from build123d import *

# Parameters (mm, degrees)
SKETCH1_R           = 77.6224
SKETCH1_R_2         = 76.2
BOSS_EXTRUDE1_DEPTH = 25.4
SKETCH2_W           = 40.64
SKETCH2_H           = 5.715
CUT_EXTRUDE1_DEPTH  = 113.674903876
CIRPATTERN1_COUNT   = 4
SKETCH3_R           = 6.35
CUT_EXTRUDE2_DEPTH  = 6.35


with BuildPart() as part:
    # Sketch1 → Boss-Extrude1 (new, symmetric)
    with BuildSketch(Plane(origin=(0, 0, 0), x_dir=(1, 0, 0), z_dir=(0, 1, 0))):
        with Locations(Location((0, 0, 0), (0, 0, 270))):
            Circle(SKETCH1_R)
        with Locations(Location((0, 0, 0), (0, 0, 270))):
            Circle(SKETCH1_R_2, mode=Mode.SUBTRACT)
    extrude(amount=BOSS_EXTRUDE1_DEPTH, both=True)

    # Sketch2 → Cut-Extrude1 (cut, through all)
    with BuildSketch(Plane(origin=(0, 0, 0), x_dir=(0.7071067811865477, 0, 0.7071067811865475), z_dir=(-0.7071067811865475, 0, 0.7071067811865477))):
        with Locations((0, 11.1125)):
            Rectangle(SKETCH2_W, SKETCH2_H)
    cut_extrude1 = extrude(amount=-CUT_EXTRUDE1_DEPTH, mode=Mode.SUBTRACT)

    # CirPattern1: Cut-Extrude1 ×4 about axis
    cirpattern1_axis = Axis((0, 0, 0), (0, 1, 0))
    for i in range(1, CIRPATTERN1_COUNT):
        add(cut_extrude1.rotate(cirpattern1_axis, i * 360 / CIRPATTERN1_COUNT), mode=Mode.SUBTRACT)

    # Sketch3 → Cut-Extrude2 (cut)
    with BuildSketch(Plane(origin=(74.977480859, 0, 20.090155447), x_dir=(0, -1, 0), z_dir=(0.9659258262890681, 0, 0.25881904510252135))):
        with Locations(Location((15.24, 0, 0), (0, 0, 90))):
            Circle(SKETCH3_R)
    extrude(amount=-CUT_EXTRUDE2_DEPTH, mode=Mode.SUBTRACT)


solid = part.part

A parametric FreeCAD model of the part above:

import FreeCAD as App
import Part
import Sketcher
Q = App.Units.Quantity

doc = App.newDocument("Part")
params = doc.addObject("Spreadsheet::Sheet", "Params")
for row, (alias, value) in enumerate([
    ("sketch1_diameter", "6 in"),
    ("sketch1_diameter2", "6.112 in"),
    ("pad1_length", "2 in"),
    ("sketch2_width", "1.6 in"),
    ("sketch2_height", "0.225 in"),
    ("sketch3_diameter", "0.5 in"),
    ("pocket2_length", "0.25 in"),
], start=1):
    params.set(f"A{row}", alias)
    params.set(f"B{row}", "=" + value)
    params.setAlias(f"B{row}", alias)

body = doc.addObject("PartDesign::Body", "Body")

# Sketch on XZ plane
sketch1 = body.newObject("Sketcher::SketchObject", "Sketch")
sketch1.AttachmentSupport = (doc.getObject("XZ_Plane"), [""])
sketch1.MapMode = "FlatFace"
sketch1.addGeometry([
    Part.Circle(App.Vector(0, 0, 0), App.Vector(0, 0, 1), 78),
    Part.Circle(App.Vector(0, 0, 0), App.Vector(0, 0, 1), 76),
], False)
sketch1.addConstraint([
    Sketcher.Constraint("Coincident", 0, 3, -1, 1),
    Sketcher.Constraint("Coincident", 1, 3, -1, 1),
    Sketcher.Constraint("Diameter", 1, Q("6 in")),
    Sketcher.Constraint("Diameter", 0, Q("6.112 in")),
])
sketch1.setExpression("Constraints[2]", "Params.sketch1_diameter")
sketch1.setExpression("Constraints[3]", "Params.sketch1_diameter2")
pad1 = body.newObject("PartDesign::Pad", "Pad")
pad1.Profile = sketch1
pad1.setExpression("Length", "Params.pad1_length")
pad1.Midplane = True

# Sketch on an angled plane
sketch2 = body.newObject("Sketcher::SketchObject", "Sketch001")
sketch2.Placement = App.Placement(App.Vector(0, 0, 0), App.Rotation(App.Vector(0.707106781, 0, 0.707106781), App.Vector(0, 0.999999999, 0), App.Vector(-0.707106781, 0, 0.707106781), "ZXY"))
sketch2.addGeometry([
    Part.LineSegment(App.Vector(-20, 14, 0), App.Vector(-20, 8, 0)),
    Part.LineSegment(App.Vector(-20, 8, 0), App.Vector(20, 8, 0)),
    Part.LineSegment(App.Vector(20, 8, 0), App.Vector(20, 14, 0)),
    Part.LineSegment(App.Vector(20, 14, 0), App.Vector(-20, 14, 0)),
], False)
sketch2.addConstraint([
    Sketcher.Constraint("Coincident", 0, 2, 1, 1),
    Sketcher.Constraint("Coincident", 1, 2, 2, 1),
    Sketcher.Constraint("Coincident", 2, 2, 3, 1),
    Sketcher.Constraint("Coincident", 3, 2, 0, 1),
    Sketcher.Constraint("Vertical", 0),
    Sketcher.Constraint("Horizontal", 1),
    Sketcher.Constraint("Vertical", 2),
    Sketcher.Constraint("Horizontal", 3),
    Sketcher.Constraint("DistanceX", 1, 1, 1, 2, Q("1.6 in")),
    Sketcher.Constraint("DistanceX", 0, 2, -1, 1, Q("0.8 in")),
    Sketcher.Constraint("DistanceY", 0, 2, 0, 1, Q("0.225 in")),
    Sketcher.Constraint("DistanceY", -1, 1, 2, 2, Q("0.55 in")),
])
sketch2.setExpression("Constraints[8]", "Params.sketch2_width")
sketch2.setExpression("Constraints[10]", "Params.sketch2_height")
pocket1 = body.newObject("PartDesign::Pocket", "Pocket")
pocket1.Profile = sketch2
pocket1.Type = "ThroughAll"
doc.recompute()

polarpattern = body.newObject("PartDesign::PolarPattern", "PolarPattern")
polarpattern.Originals = [pocket1]
polarpattern.Axis = (doc.getObject("Y_Axis"), [""])
polarpattern.Angle = 360
polarpattern.Occurrences = 4
body.Tip = polarpattern

# Sketch on an angled plane
sketch3 = body.newObject("Sketcher::SketchObject", "Sketch002")
sketch3.Placement = App.Placement(App.Vector(74.977481, 0, 20.090155), App.Rotation(App.Vector(0, -1, 0), App.Vector(0.258819045, 0, -0.965925826), App.Vector(0.965925826, 0, 0.258819045), "ZXY"))
sketch3.addGeometry(Part.Circle(App.Vector(15, 0, 0), App.Vector(0, 0, 1), 6), False)
sketch3.addConstraint([
    Sketcher.Constraint("PointOnObject", 0, 3, -1),
    Sketcher.Constraint("Diameter", 0, Q("0.5 in")),
    Sketcher.Constraint("DistanceX", -1, 1, 0, 3, Q("0.6 in")),
])
sketch3.setExpression("Constraints[1]", "Params.sketch3_diameter")
pocket2 = body.newObject("PartDesign::Pocket", "Pocket001")
pocket2.Profile = sketch3
pocket2.setExpression("Length", "Params.pocket2_length")

doc.recompute()
